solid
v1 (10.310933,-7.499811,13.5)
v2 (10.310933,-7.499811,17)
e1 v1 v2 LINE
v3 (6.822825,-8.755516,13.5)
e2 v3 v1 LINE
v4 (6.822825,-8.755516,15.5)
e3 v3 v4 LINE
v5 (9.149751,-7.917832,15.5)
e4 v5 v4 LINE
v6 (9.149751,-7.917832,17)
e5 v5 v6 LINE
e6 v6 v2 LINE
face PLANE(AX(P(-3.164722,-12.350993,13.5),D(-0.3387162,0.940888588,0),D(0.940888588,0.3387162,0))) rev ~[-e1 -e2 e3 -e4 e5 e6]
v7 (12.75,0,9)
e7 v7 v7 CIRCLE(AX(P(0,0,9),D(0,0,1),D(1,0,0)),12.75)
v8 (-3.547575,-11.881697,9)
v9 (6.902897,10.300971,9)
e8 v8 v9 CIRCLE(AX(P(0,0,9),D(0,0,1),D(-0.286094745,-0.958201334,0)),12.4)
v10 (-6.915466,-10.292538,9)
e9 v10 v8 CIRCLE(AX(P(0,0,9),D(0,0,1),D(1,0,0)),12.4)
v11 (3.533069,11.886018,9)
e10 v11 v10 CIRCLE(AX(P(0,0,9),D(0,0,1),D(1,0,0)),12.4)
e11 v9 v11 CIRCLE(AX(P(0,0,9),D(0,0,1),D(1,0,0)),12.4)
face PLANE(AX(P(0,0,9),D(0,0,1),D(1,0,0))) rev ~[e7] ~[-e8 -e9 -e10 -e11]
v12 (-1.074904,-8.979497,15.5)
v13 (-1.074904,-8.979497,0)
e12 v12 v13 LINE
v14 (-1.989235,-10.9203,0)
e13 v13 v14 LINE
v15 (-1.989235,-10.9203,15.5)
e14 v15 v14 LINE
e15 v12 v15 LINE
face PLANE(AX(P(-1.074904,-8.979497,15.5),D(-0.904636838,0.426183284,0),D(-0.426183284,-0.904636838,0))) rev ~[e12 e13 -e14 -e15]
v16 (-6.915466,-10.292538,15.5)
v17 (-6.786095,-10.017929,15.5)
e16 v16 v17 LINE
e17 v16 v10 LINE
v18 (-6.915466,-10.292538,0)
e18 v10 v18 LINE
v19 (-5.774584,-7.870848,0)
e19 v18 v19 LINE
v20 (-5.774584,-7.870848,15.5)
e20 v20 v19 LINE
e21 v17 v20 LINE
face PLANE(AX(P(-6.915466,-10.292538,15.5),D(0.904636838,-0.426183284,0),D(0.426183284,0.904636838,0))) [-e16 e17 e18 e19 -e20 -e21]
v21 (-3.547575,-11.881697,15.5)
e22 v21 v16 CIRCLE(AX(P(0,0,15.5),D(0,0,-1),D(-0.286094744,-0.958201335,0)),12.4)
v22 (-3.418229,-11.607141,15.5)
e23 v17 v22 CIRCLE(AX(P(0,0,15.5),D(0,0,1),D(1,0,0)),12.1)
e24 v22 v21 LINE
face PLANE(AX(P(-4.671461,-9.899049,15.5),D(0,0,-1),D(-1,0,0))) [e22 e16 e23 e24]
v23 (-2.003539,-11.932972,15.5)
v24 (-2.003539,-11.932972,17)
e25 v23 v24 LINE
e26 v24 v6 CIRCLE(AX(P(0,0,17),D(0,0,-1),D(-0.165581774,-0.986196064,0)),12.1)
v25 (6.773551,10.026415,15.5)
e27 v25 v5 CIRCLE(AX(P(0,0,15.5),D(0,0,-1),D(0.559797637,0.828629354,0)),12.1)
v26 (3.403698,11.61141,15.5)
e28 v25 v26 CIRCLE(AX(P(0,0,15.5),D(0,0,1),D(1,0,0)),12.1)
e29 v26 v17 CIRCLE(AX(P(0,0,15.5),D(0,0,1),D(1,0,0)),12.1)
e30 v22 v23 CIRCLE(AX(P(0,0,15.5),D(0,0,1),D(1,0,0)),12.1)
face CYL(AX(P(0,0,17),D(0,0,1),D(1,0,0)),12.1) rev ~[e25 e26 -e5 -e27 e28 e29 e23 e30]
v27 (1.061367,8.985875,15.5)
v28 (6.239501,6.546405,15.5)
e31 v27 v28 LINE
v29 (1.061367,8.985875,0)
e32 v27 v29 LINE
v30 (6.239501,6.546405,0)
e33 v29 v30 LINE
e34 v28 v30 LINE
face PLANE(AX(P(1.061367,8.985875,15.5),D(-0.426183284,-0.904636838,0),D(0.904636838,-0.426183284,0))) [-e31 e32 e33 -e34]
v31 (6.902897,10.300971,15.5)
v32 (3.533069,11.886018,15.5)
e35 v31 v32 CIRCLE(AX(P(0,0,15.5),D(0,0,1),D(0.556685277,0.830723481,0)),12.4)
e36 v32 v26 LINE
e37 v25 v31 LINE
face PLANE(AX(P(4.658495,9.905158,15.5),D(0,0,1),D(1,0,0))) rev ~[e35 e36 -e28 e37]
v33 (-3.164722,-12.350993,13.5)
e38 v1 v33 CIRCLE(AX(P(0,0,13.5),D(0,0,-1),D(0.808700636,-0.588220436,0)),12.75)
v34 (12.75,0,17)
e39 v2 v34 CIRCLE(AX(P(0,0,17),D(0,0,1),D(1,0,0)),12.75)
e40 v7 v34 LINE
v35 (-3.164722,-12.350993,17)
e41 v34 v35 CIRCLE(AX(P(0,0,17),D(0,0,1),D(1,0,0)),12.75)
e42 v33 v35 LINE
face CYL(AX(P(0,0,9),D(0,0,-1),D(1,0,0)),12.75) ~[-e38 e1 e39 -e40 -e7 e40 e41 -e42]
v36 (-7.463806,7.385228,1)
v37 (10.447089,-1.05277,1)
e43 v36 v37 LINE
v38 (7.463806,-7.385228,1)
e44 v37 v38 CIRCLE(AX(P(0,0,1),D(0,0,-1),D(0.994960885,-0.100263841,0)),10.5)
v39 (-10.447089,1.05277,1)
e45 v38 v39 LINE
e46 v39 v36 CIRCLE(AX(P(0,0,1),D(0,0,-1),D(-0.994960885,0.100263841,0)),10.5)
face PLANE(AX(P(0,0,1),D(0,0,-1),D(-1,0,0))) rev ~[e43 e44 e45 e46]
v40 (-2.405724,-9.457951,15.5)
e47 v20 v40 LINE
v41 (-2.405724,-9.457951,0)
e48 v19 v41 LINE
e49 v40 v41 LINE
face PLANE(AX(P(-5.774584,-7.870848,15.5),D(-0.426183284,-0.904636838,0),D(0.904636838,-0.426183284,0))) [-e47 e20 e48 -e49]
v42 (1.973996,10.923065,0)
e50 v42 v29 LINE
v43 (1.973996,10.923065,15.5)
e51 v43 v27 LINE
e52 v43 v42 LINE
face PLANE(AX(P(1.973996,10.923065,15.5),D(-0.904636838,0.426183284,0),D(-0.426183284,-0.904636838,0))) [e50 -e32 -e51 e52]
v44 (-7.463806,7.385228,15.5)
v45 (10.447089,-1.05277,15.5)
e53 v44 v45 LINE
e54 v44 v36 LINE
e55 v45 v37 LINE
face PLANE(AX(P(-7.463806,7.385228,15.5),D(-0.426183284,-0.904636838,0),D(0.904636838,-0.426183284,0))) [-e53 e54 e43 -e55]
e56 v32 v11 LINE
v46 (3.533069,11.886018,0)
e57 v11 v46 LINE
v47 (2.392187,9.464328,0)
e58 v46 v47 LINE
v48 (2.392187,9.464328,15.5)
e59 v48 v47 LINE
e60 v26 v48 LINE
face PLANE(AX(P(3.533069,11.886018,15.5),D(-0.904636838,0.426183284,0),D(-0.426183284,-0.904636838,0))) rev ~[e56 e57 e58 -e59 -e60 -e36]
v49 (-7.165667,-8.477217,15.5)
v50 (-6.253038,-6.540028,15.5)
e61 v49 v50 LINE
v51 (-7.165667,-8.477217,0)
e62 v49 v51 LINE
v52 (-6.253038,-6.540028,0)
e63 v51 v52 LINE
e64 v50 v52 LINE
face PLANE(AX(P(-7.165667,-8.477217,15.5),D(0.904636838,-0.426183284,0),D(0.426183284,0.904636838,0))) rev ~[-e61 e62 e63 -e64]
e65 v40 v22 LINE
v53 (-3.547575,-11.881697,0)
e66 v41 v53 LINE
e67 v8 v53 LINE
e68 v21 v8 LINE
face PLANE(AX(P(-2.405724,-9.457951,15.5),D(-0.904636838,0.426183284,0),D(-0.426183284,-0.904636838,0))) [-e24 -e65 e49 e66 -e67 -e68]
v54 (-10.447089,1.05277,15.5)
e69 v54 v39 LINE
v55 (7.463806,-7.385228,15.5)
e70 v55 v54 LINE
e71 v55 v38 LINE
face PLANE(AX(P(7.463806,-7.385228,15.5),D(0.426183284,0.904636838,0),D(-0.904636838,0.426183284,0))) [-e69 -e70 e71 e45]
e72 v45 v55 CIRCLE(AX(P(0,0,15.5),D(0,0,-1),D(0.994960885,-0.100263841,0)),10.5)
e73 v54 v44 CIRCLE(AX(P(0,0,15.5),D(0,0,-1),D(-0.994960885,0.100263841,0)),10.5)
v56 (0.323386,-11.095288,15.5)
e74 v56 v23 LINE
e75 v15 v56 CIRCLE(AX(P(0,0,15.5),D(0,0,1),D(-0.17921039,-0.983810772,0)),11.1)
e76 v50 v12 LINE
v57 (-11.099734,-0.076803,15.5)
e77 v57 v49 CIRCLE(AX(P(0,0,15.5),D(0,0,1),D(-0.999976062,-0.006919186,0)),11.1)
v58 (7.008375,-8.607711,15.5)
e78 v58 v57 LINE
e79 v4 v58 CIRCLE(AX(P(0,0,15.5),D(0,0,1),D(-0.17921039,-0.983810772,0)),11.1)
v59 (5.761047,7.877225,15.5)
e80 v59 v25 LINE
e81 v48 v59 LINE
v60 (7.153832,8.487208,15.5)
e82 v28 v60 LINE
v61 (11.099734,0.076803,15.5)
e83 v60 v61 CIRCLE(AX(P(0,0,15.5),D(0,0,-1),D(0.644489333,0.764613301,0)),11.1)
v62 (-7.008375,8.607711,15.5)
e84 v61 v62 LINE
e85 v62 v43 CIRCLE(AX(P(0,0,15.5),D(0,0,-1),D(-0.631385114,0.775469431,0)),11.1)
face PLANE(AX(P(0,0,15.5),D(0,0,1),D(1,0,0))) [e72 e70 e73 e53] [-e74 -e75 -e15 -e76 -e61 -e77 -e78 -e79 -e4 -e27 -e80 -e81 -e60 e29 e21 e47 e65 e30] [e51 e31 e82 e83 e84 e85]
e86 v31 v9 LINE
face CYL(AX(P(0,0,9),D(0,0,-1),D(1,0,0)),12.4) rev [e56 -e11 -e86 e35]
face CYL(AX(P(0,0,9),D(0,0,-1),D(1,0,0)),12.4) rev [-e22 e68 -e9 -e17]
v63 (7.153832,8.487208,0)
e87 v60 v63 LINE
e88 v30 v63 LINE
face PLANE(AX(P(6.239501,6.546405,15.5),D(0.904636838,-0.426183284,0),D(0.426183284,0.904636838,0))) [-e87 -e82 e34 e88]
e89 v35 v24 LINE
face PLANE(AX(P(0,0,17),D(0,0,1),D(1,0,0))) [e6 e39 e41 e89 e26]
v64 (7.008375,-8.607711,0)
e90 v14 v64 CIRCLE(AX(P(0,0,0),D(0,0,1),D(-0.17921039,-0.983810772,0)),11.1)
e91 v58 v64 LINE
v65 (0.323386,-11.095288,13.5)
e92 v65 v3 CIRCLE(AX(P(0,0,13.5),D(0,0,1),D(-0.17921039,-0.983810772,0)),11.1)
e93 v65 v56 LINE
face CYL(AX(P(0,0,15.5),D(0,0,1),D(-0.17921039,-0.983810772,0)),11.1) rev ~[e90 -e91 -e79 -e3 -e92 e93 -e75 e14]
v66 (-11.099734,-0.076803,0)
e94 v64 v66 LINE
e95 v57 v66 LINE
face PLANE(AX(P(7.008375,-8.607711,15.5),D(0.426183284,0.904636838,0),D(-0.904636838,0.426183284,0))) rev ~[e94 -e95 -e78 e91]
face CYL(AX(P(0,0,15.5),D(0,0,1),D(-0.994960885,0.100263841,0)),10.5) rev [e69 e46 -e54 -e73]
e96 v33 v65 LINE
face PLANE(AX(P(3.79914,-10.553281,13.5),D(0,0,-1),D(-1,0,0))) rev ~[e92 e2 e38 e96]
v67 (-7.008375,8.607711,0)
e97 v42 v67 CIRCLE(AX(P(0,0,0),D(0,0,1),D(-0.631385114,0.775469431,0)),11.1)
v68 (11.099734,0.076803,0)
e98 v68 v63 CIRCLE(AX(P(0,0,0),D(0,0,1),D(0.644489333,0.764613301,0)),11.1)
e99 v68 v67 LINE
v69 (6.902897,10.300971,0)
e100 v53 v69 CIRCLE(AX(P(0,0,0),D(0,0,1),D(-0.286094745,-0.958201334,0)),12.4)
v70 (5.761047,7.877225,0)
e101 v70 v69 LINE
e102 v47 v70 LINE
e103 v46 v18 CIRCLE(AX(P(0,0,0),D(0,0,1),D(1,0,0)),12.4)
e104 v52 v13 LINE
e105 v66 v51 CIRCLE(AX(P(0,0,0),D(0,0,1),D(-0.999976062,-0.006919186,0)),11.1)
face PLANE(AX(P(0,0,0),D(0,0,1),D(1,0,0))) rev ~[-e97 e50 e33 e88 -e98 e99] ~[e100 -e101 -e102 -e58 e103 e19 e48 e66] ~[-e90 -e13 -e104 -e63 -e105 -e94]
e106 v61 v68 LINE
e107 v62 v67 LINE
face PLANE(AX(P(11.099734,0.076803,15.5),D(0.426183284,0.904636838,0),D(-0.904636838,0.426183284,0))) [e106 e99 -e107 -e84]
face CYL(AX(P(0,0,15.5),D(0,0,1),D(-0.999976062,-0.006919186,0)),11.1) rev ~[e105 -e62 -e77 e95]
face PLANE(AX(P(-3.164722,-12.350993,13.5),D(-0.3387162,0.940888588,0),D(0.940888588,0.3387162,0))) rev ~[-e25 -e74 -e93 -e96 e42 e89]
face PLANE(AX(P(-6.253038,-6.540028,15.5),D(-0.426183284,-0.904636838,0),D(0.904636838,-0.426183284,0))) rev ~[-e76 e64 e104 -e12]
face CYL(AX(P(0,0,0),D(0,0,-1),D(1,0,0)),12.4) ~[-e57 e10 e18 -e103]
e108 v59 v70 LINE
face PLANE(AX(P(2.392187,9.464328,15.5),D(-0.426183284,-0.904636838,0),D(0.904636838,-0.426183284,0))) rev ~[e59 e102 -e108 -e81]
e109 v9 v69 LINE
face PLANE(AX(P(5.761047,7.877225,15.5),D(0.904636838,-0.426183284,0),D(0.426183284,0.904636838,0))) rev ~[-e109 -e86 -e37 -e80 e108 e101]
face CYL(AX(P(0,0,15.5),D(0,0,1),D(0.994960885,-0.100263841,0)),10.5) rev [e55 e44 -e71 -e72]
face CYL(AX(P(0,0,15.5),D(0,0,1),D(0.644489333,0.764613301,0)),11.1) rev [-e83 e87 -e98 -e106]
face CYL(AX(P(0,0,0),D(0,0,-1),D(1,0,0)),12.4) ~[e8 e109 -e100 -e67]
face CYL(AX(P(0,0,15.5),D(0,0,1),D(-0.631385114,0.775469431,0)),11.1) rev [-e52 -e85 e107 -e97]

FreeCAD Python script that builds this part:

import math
import FreeCAD as App
import Part
import Sketcher
from FreeCAD import Vector

doc = App.newDocument("Part")
body = doc.addObject("PartDesign::Body", "Body")

sketch1 = doc.addObject("Sketcher::SketchObject", "Sketch")
body.addObject(sketch1)
sketch1.AttachmentSupport = (doc.XY_Plane, [""])
sketch1.MapMode = "FlatFace"
sketch1.addGeometry(Part.Circle(Vector(0, 0, 0), Vector(0, 0, 1), 12), False)
sketch1.addConstraint([
    Sketcher.Constraint("Coincident", 0, 3, -1, 1),
    Sketcher.Constraint("Diameter", 0, 24.8),
])
pad1 = doc.addObject("PartDesign::Pad", "Pad")
body.addObject(pad1)
pad1.Profile = sketch1
pad1.Length = 17

sketch2 = doc.addObject("Sketcher::SketchObject", "Sketch001")
body.addObject(sketch2)
sketch2.AttachmentSupport = (doc.XY_Plane, [""])
sketch2.MapMode = "FlatFace"
sketch2.AttachmentOffset = App.Placement(Vector(0, 0, 17), App.Rotation())
sketch2.addGeometry(Part.Circle(Vector(0, 0, 0), Vector(0, 0, 1), 12), False)
sketch2.addConstraint([
    Sketcher.Constraint("Coincident", 0, 3, -1, 1),
    Sketcher.Constraint("Diameter", 0, 24.2),
])
pocket1 = doc.addObject("PartDesign::Pocket", "Pocket")
body.addObject(pocket1)
pocket1.Profile = sketch2
pocket1.Length = 1.5

sketch3 = doc.addObject("Sketcher::SketchObject", "Sketch002")
body.addObject(sketch3)
sketch3.AttachmentSupport = (doc.XY_Plane, [""])
sketch3.MapMode = "FlatFace"
sketch3.AttachmentOffset = App.Placement(Vector(0, 0, 15.5), App.Rotation())
sketch3.addGeometry([
    Part.LineSegment(Vector(-5.8, -7.9, 0), Vector(-6.9, -10.3, 0)),
    Part.ArcOfCircle(Part.Circle(Vector(0, 0, 0), Vector(0, 0, 1), 12.4), math.radians(-123.9), math.radians(-106.62)),
    Part.LineSegment(Vector(-3.5, -11.9, 0), Vector(-2.4, -9.5, 0)),
    Part.LineSegment(Vector(-2.4, -9.5, 0), Vector(-5.8, -7.9, 0)),
    Part.LineSegment(Vector(5.8, 7.9, 0), Vector(6.9, 10.3, 0)),
    Part.ArcOfCircle(Part.Circle(Vector(0, 0, 0), Vector(0, 0, 1), 12.4), math.radians(56.17), math.radians(73.45)),
    Part.LineSegment(Vector(3.5, 11.9, 0), Vector(2.4, 9.5, 0)),
    Part.LineSegment(Vector(2.4, 9.5, 0), Vector(5.8, 7.9, 0)),
], False)
sketch3.addConstraint([
    Sketcher.Constraint("Coincident", 0, 2, 1, 1),
    Sketcher.Constraint("Coincident", 1, 2, 2, 1),
    Sketcher.Constraint("Coincident", 2, 2, 3, 1),
    Sketcher.Constraint("Coincident", 3, 2, 0, 1),
    Sketcher.Constraint("Coincident", 4, 2, 5, 1),
    Sketcher.Constraint("Coincident", 5, 2, 6, 1),
    Sketcher.Constraint("Coincident", 6, 2, 7, 1),
    Sketcher.Constraint("Coincident", 7, 2, 4, 1),
    Sketcher.Constraint("Coincident", 1, 3, -1, 1),
    Sketcher.Constraint("Coincident", 5, 3, -1, 1),
    Sketcher.Constraint("Equal", 1, 5),
    Sketcher.Constraint("Parallel", 0, 2),
    Sketcher.Constraint("Perpendicular", 2, 3),
    Sketcher.Constraint("Perpendicular", 3, 4),
    Sketcher.Constraint("Parallel", 4, 6),
    Sketcher.Constraint("Perpendicular", 6, 7),
    Sketcher.Constraint("Equal", 2, 4),
    Sketcher.Constraint("Equal", 0, 6),
    Sketcher.Constraint("Equal", 3, 7),
    Sketcher.Constraint("Radius", 1, 12.4),
    Sketcher.Constraint("Distance", 3, 3.723992),
    Sketcher.Constraint("DistanceY", 2, 2, -1, 1, 9.457951),
    Sketcher.Constraint("DistanceY", -1, 1, 4, 2, 10.300971),
    Sketcher.Constraint("DistanceY", -1, 1, 6, 2, 9.464328),
])
pocket2 = doc.addObject("PartDesign::Pocket", "Pocket001")
body.addObject(pocket2)
pocket2.Profile = sketch3
pocket2.Type = "ThroughAll"

sketch4 = doc.addObject("Sketcher::SketchObject", "Sketch003")
body.addObject(sketch4)
sketch4.AttachmentSupport = (doc.XY_Plane, [""])
sketch4.MapMode = "FlatFace"
sketch4.AttachmentOffset = App.Placement(Vector(0, 0, 9), App.Rotation())
sketch4.addGeometry([
    Part.Circle(Vector(0, 0, 0), Vector(0, 0, 1), 13),
    Part.Circle(Vector(0, 0, 0), Vector(0, 0, 1), 12),
], False)
sketch4.addConstraint([
    Sketcher.Constraint("Coincident", 0, 3, -1, 1),
    Sketcher.Constraint("Coincident", 1, 3, -1, 1),
    Sketcher.Constraint("Diameter", 0, 25.5),
    Sketcher.Constraint("Diameter", 1, 24.8),
])
pad2 = doc.addObject("PartDesign::Pad", "Pad001")
body.addObject(pad2)
pad2.Profile = sketch4
pad2.Length = 8

sketch5 = doc.addObject("Sketcher::SketchObject", "Sketch004")
body.addObject(sketch5)
sketch5.AttachmentSupport = (doc.XY_Plane, [""])
sketch5.MapMode = "FlatFace"
sketch5.AttachmentOffset = App.Placement(Vector(0, 0, 15.5), App.Rotation())
sketch5.addGeometry([
    Part.LineSegment(Vector(10, -1, 0), Vector(-7, 7, 0)),
    Part.ArcOfCircle(Part.Circle(Vector(0, 0, 0), Vector(0, 0, 1), 10), math.radians(135), math.radians(174)),
    Part.LineSegment(Vector(-10, 1, 0), Vector(7, -7, 0)),
    Part.ArcOfCircle(Part.Circle(Vector(0, 0, 0), Vector(0, 0, 1), 10), math.radians(-45), math.radians(-6)),
], False)
sketch5.addConstraint([
    Sketcher.Constraint("Coincident", 0, 2, 1, 1),
    Sketcher.Constraint("Coincident", 1, 2, 2, 1),
    Sketcher.Constraint("Coincident", 2, 2, 3, 1),
    Sketcher.Constraint("Coincident", 3, 2, 0, 1),
    Sketcher.Constraint("Coincident", 1, 3, -1, 1),
    Sketcher.Constraint("Coincident", 3, 3, -1, 1),
    Sketcher.Constraint("Equal", 1, 3),
    Sketcher.Constraint("Parallel", 0, 2),
    Sketcher.Constraint("Equal", 0, 2),
    Sketcher.Constraint("Radius", 1, 10.5),
    Sketcher.Constraint("DistanceY", 2, 2, 1, 2, 8.437999),
    Sketcher.Constraint("Distance", 0, 19.79899),
])
pocket3 = doc.addObject("PartDesign::Pocket", "Pocket002")
body.addObject(pocket3)
pocket3.Profile = sketch5
pocket3.Length = 14.5

sketch6 = doc.addObject("Sketcher::SketchObject", "Sketch005")
body.addObject(sketch6)
sketch6.AttachmentSupport = (doc.XY_Plane, [""])
sketch6.MapMode = "FlatFace"
sketch6.AttachmentOffset = App.Placement(Vector(0, 0, 15.5), App.Rotation())
sketch6.addGeometry([
    Part.LineSegment(Vector(-7, 8.6, 0), Vector(11.1, 0.1, 0)),
    Part.ArcOfCircle(Part.Circle(Vector(0, 0, 0), Vector(0, 0, 1), 11.1), math.radians(0), math.radians(50)),
    Part.LineSegment(Vector(7.2, 8.5, 0), Vector(6.2, 6.5, 0)),
    Part.LineSegment(Vector(6.2, 6.5, 0), Vector(1.1, 9, 0)),
    Part.LineSegment(Vector(1.1, 9, 0), Vector(2, 10.9, 0)),
    Part.ArcOfCircle(Part.Circle(Vector(0, 0, 0), Vector(0, 0, 1), 11.1), math.radians(80), math.radians(129)),
    Part.LineSegment(Vector(7, -8.6, 0), Vector(-11.1, -0.1, 0)),
    Part.ArcOfCircle(Part.Circle(Vector(0, 0, 0), Vector(0, 0, 1), 11.1), math.radians(-180), math.radians(-130)),
    Part.LineSegment(Vector(-7.2, -8.5, 0), Vector(-6.3, -6.5, 0)),
    Part.LineSegment(Vector(-6.3, -6.5, 0), Vector(-1.1, -9, 0)),
    Part.LineSegment(Vector(-1.1, -9, 0), Vector(-2, -10.9, 0)),
    Part.ArcOfCircle(Part.Circle(Vector(0, 0, 0), Vector(0, 0, 1), 11.1), math.radians(-100), math.radians(-51)),
], False)
sketch6.addConstraint([
    Sketcher.Constraint("Coincident", 0, 2, 1, 1),
    Sketcher.Constraint("Coincident", 1, 2, 2, 1),
    Sketcher.Constraint("Coincident", 2, 2, 3, 1),
    Sketcher.Constraint("Coincident", 3, 2, 4, 1),
    Sketcher.Constraint("Coincident", 4, 2, 5, 1),
    Sketcher.Constraint("Coincident", 5, 2, 0, 1),
    Sketcher.Constraint("Coincident", 6, 2, 7, 1),
    Sketcher.Constraint("Coincident", 7, 2, 8, 1),
    Sketcher.Constraint("Coincident", 8, 2, 9, 1),
    Sketcher.Constraint("Coincident", 9, 2, 10, 1),
    Sketcher.Constraint("Coincident", 10, 2, 11, 1),
    Sketcher.Constraint("Coincident", 11, 2, 6, 1),
    Sketcher.Constraint("Coincident", 1, 3, -1, 1),
    Sketcher.Constraint("Coincident", 5, 3, -1, 1),
    Sketcher.Constraint("Coincident", 7, 3, -1, 1),
    Sketcher.Constraint("Coincident", 11, 3, -1, 1),
    Sketcher.Constraint("Equal", 1, 5),
    Sketcher.Constraint("Equal", 5, 7),
    Sketcher.Constraint("Equal", 7, 11),
    Sketcher.Constraint("Perpendicular", 0, 2),
    Sketcher.Constraint("Perpendicular", 2, 3),
    Sketcher.Constraint("Perpendicular", 3, 4),
    Sketcher.Constraint("Perpendicular", 4, 6),
    Sketcher.Constraint("Perpendicular", 6, 8),
    Sketcher.Constraint("Perpendicular", 8, 9),
    Sketcher.Constraint("Perpendicular", 9, 10),
    Sketcher.Constraint("Equal", 0, 6),
    Sketcher.Constraint("Equal", 4, 8),
    Sketcher.Constraint("Equal", 3, 9),
    Sketcher.Constraint("Equal", 2, 10),
    Sketcher.Constraint("Radius", 1, 11.1),
    Sketcher.Constraint("Distance", 4, 2.141401),
    Sketcher.Constraint("DistanceX", -1, 1, 2, 2, 6.239501),
    Sketcher.Constraint("DistanceY", 10, 2, -1, 1, 10.9203),
    Sketcher.Constraint("Distance", 3, 5.723992),
    Sketcher.Constraint("DistanceY", -1, 1, 5, 2, 8.607711),
])
pocket4 = doc.addObject("PartDesign::Pocket", "Pocket003")
body.addObject(pocket4)
pocket4.Profile = sketch6
pocket4.Type = "ThroughAll"

sketch7 = doc.addObject("Sketcher::SketchObject", "Sketch006")
body.addObject(sketch7)
sketch7.AttachmentSupport = (doc.XY_Plane, [""])
sketch7.MapMode = "FlatFace"
sketch7.AttachmentOffset = App.Placement(Vector(0, 0, 13.5), App.Rotation())
sketch7.addGeometry([
    Part.LineSegment(Vector(10, -7, 0), Vector(-3, -12, 0)),
    Part.ArcOfCircle(Part.Circle(Vector(0, 0, 0), Vector(0, 0, 1), 13), math.radians(-104), math.radians(-36)),
], False)
sketch7.addConstraint([
    Sketcher.Constraint("Coincident", 0, 1, 1, 2),
    Sketcher.Constraint("Coincident", 1, 1, 0, 2),
    Sketcher.Constraint("Coincident", 1, 3, -1, 1),
    Sketcher.Constraint("Radius", 1, 12.75),
    Sketcher.Constraint("DistanceY", 0, 1, -1, 1, 7.499811),
    Sketcher.Constraint("DistanceX", 1, 1, -1, 1, 3.164722),
])
pocket5 = doc.addObject("PartDesign::Pocket", "Pocket004")
body.addObject(pocket5)
pocket5.Profile = sketch7
pocket5.Length = 3.5
pocket5.Reversed = True

doc.recompute()
